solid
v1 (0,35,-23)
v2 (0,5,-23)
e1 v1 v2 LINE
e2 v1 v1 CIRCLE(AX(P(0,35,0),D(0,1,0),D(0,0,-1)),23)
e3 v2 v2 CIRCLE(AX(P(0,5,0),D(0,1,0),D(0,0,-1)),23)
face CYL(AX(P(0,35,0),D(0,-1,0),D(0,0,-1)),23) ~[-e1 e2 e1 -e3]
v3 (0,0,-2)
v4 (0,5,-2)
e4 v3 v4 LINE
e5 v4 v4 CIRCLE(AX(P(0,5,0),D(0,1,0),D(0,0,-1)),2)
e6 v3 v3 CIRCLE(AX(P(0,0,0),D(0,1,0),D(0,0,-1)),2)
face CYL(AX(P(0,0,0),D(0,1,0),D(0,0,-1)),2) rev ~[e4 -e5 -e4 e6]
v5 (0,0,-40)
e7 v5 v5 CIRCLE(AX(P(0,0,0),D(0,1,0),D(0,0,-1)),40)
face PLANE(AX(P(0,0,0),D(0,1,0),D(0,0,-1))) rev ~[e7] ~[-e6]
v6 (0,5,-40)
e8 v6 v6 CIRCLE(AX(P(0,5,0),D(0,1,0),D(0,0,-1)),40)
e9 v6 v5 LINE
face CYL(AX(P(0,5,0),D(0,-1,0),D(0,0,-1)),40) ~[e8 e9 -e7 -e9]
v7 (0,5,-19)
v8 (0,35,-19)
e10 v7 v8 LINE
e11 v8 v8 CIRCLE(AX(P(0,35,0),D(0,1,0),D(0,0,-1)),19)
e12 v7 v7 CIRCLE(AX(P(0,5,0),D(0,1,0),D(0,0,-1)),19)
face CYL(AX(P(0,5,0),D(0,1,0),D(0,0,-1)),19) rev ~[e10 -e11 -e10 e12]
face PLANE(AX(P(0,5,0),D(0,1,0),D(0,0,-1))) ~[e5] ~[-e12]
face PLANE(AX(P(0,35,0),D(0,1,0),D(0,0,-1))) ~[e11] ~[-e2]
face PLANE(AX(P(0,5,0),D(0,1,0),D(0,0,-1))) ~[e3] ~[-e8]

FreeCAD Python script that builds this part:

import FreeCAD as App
import Part
import Sketcher
Q = App.Units.Quantity

doc = App.newDocument("Part")
body = doc.addObject("PartDesign::Body", "Body")

sketch1 = body.newObject("Sketcher::SketchObject", "Sketch")
sketch1.AttachmentSupport = (doc.getObject("YZ_Plane"), [""])
sketch1.MapMode = "FlatFace"
sketch1.addGeometry(Part.LineSegment(App.Vector(5, -2, 0), App.Vector(0, -2, 0)), False)
sketch1.addGeometry(Part.LineSegment(App.Vector(0, -2, 0), App.Vector(0, -40, 0)), False)
sketch1.addGeometry(Part.LineSegment(App.Vector(0, -40, 0), App.Vector(5, -40, 0)), False)
sketch1.addGeometry(Part.LineSegment(App.Vector(5, -40, 0), App.Vector(5, -23, 0)), False)
sketch1.addGeometry(Part.LineSegment(App.Vector(5, -23, 0), App.Vector(35, -23, 0)), False)
sketch1.addGeometry(Part.LineSegment(App.Vector(35, -23, 0), App.Vector(35, -19, 0)), False)
sketch1.addGeometry(Part.LineSegment(App.Vector(35, -19, 0), App.Vector(5, -19, 0)), False)
sketch1.addGeometry(Part.LineSegment(App.Vector(5, -19, 0), App.Vector(5, -2, 0)), False)
sketch1.addConstraint(Sketcher.Constraint("Coincident", 0, 2, 1, 1))
sketch1.addConstraint(Sketcher.Constraint("Coincident", 1, 2, 2, 1))
sketch1.addConstraint(Sketcher.Constraint("Coincident", 2, 2, 3, 1))
sketch1.addConstraint(Sketcher.Constraint("Coincident", 3, 2, 4, 1))
sketch1.addConstraint(Sketcher.Constraint("Coincident", 4, 2, 5, 1))
sketch1.addConstraint(Sketcher.Constraint("Coincident", 5, 2, 6, 1))
sketch1.addConstraint(Sketcher.Constraint("Coincident", 6, 2, 7, 1))
sketch1.addConstraint(Sketcher.Constraint("Coincident", 7, 2, 0, 1))
sketch1.addConstraint(Sketcher.Constraint("Horizontal", 0))
sketch1.addConstraint(Sketcher.Constraint("Vertical", 1))
sketch1.addConstraint(Sketcher.Constraint("Horizontal", 2))
sketch1.addConstraint(Sketcher.Constraint("Vertical", 3))
sketch1.addConstraint(Sketcher.Constraint("Horizontal", 4))
sketch1.addConstraint(Sketcher.Constraint("Vertical", 5))
sketch1.addConstraint(Sketcher.Constraint("Horizontal", 6))
sketch1.addConstraint(Sketcher.Constraint("Vertical", 7))
sketch1.addConstraint(Sketcher.Constraint("PointOnObject", 0, 2, -2))
sketch1.addConstraint(Sketcher.Constraint("Vertical", 3, 2, 6, 2))
sketch1.addConstraint(Sketcher.Constraint("Equal", 3, 7))
sketch1.addConstraint(Sketcher.Constraint("DistanceX", 0, 2, 0, 1, Q("5 mm")))
sketch1.addConstraint(Sketcher.Constraint("DistanceY", 0, 2, -1, 1, Q("2 mm")))
sketch1.addConstraint(Sketcher.Constraint("DistanceY", 1, 2, -1, 1, Q("40 mm")))
sketch1.addConstraint(Sketcher.Constraint("DistanceY", 3, 2, -1, 1, Q("23 mm")))
sketch1.addConstraint(Sketcher.Constraint("DistanceX", -1, 1, 4, 2, Q("35 mm")))
revolution = body.newObject("PartDesign::Revolution", "Revolution")
revolution.Profile = sketch1
revolution.ReferenceAxis = (sketch1, ["H_Axis"])
revolution.Angle = 360

doc.recompute()
